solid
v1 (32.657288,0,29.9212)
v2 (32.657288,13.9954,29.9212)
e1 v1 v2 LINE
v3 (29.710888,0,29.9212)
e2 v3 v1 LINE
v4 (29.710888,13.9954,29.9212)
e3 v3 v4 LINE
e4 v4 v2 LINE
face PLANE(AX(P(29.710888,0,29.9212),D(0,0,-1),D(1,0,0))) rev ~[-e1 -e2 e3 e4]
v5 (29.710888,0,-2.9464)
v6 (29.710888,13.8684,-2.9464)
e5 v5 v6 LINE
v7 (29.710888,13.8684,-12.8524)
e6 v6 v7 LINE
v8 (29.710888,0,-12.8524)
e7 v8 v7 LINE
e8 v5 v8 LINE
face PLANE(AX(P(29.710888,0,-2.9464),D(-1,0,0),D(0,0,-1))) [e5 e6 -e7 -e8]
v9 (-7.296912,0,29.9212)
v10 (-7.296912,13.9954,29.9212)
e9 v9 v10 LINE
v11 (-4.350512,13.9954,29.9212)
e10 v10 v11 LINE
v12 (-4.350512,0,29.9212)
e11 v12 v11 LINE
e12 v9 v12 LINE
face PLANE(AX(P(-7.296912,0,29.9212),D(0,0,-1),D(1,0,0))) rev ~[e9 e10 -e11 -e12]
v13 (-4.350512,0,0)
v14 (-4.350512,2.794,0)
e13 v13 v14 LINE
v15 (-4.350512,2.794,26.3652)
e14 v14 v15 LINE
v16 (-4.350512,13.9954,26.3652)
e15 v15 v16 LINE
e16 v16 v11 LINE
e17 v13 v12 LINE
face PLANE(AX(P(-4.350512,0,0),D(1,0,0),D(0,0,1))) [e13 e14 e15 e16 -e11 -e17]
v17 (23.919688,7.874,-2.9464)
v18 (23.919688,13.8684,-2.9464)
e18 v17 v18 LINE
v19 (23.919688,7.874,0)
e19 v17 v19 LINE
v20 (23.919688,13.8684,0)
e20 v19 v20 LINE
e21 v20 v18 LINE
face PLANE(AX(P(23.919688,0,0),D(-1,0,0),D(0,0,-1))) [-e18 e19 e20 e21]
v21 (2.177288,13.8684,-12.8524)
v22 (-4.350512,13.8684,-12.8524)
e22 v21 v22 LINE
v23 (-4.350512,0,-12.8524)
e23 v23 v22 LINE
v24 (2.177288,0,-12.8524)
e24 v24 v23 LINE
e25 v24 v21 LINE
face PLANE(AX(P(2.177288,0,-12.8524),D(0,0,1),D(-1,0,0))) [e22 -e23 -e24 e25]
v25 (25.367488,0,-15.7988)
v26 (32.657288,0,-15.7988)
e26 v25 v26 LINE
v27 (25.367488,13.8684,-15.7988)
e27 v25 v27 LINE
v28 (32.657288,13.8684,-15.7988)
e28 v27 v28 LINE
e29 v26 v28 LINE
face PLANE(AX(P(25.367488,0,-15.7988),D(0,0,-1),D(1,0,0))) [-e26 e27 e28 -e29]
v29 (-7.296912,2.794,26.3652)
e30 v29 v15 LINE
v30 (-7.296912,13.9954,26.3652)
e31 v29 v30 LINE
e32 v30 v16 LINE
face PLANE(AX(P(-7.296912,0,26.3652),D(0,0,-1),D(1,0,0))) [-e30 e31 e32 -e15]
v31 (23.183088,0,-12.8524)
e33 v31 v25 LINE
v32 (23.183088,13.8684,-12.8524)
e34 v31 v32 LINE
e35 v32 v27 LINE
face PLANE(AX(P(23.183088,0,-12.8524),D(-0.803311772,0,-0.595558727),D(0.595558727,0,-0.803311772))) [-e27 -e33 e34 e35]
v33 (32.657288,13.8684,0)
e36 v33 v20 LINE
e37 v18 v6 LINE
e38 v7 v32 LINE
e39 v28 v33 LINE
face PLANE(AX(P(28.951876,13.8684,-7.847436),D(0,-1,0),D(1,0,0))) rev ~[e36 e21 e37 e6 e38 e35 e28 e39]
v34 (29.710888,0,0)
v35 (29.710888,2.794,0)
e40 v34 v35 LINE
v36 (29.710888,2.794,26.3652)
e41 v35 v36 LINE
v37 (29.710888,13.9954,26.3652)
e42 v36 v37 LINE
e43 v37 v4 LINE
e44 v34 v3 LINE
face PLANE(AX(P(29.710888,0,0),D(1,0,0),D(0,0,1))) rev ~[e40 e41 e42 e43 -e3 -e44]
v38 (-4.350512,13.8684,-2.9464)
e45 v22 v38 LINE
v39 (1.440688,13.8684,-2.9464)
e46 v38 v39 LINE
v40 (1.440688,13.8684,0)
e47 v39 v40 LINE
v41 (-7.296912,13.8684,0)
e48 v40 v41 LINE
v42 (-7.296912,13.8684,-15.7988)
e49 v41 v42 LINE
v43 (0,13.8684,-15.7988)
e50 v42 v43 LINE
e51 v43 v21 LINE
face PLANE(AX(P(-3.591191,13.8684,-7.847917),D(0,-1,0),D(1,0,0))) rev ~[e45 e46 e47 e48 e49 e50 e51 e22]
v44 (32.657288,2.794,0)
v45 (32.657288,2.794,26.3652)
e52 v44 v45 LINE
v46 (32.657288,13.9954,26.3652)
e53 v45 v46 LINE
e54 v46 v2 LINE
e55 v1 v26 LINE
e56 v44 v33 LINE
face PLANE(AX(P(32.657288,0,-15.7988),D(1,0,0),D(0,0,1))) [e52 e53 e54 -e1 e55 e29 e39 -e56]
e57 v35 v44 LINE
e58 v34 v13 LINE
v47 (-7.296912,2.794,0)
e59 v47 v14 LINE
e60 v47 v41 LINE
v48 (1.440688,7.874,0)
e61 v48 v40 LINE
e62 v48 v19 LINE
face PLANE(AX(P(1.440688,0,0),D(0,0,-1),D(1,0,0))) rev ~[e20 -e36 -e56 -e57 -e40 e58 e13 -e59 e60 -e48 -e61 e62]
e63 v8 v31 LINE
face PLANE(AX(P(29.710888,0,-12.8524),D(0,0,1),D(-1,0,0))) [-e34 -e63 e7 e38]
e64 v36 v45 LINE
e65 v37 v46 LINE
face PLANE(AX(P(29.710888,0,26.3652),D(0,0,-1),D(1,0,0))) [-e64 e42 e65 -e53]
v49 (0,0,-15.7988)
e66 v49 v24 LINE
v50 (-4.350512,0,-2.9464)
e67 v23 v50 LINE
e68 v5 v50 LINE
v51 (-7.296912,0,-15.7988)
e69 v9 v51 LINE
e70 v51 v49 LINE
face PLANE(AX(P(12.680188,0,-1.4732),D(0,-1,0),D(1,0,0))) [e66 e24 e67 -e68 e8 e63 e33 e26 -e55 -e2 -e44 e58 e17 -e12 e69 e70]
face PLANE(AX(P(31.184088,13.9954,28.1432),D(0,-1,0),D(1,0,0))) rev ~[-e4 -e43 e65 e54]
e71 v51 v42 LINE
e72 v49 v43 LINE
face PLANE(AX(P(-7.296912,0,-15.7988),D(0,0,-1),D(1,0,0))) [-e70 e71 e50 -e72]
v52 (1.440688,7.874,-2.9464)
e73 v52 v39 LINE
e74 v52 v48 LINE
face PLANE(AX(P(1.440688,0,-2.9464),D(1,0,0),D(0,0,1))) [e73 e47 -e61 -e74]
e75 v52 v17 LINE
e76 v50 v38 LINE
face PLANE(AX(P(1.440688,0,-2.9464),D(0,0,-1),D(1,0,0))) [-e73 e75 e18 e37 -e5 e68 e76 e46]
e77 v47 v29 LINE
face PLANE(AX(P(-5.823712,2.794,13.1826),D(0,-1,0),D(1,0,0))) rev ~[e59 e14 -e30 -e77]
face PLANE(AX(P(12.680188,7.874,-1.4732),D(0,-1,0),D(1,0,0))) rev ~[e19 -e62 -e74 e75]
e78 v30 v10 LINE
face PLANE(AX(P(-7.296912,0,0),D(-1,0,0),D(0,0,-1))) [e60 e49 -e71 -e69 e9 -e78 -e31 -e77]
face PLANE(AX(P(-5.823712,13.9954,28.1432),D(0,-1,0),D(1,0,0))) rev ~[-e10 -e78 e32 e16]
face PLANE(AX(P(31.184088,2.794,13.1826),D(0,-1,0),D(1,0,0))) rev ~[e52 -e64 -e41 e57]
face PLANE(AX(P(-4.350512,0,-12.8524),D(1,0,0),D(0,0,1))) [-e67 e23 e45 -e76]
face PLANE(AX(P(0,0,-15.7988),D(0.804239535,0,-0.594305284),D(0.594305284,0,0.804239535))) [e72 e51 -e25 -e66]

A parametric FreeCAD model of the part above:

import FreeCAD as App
import Part
import Sketcher
from FreeCAD import Vector
Q = App.Units.Quantity

doc = App.newDocument("Part")
params = doc.addObject("Spreadsheet::Sheet", "Params")
for row, (alias, value) in enumerate([
    ("sketch1_height", "0.14 in"),
    ("sketch1_width", "0.116 in"),
    ("pad1_length", "0.551 in"),
    ("sketch2_width", "0.116 in"),
    ("sketch2_height", "1.038 in"),
    ("pad2_length", "0.11 in"),
    ("sketch3_height", "0.39 in"),
    ("sketch3_width", "0.344 in"),
    ("sketch3_width2", "0.228 in"),
    ("sketch3_width3", "0.257 in"),
    ("sketch3_width4", "0.287 in"),
    ("pad3_length", "0.546 in"),
    ("sketch4_width", "0.885 in"),
    ("sketch4_height", "0.116 in"),
    ("pad4_length", "0.31 in"),
], start=1):
    params.set(f"A{row}", alias)
    params.set(f"B{row}", "=" + value)
    params.setAlias(f"B{row}", alias)

body = doc.addObject("PartDesign::Body", "Body")
body.AllowCompound = True

# Sketch on XZ plane
sketch1 = body.newObject("Sketcher::SketchObject", "Sketch")
sketch1.AttachmentSupport = (doc.getObject("XZ_Plane"), [""])
sketch1.MapMode = "FlatFace"
sketch1.addGeometry([
    Part.LineSegment(Vector(-7.3, 29.9, 0), Vector(-7.3, 26.4, 0)),  # 0
    Part.LineSegment(Vector(-7.3, 26.4, 0), Vector(-4.4, 26.4, 0)),  # 1
    Part.LineSegment(Vector(-4.4, 26.4, 0), Vector(-4.4, 29.9, 0)),  # 2
    Part.LineSegment(Vector(-4.4, 29.9, 0), Vector(-7.3, 29.9, 0)),  # 3
    Part.LineSegment(Vector(29.7, 29.9, 0), Vector(29.7, 26.4, 0)),  # 4
    Part.LineSegment(Vector(29.7, 26.4, 0), Vector(32.7, 26.4, 0)),  # 5
    Part.LineSegment(Vector(32.7, 26.4, 0), Vector(32.7, 29.9, 0)),  # 6
    Part.LineSegment(Vector(32.7, 29.9, 0), Vector(29.7, 29.9, 0)),  # 7
], False)
sketch1.addConstraint([
    Sketcher.Constraint("Coincident", 0, 2, 1, 1),
    Sketcher.Constraint("Coincident", 1, 2, 2, 1),
    Sketcher.Constraint("Coincident", 2, 2, 3, 1),
    Sketcher.Constraint("Coincident", 3, 2, 0, 1),
    Sketcher.Constraint("Coincident", 4, 2, 5, 1),
    Sketcher.Constraint("Coincident", 5, 2, 6, 1),
    Sketcher.Constraint("Coincident", 6, 2, 7, 1),
    Sketcher.Constraint("Coincident", 7, 2, 4, 1),
    Sketcher.Constraint("Vertical", 0),
    Sketcher.Constraint("Horizontal", 1),
    Sketcher.Constraint("Vertical", 2),
    Sketcher.Constraint("Horizontal", 3),
    Sketcher.Constraint("Vertical", 4),
    Sketcher.Constraint("Horizontal", 5),
    Sketcher.Constraint("Vertical", 6),
    Sketcher.Constraint("Horizontal", 7),
    Sketcher.Constraint("Horizontal", 1, 2, 4, 2),
    Sketcher.Constraint("Horizontal", 3, 2, 6, 2),
    Sketcher.Constraint("Equal", 3, 5),
    Sketcher.Constraint("DistanceY", 0, 2, 0, 1, Q("0.14 in")),
    Sketcher.Constraint("DistanceX", 1, 1, 1, 2, Q("0.116 in")),
    Sketcher.Constraint("DistanceY", -1, 1, 0, 2, Q("1.038 in")),
    Sketcher.Constraint("DistanceX", 1, 2, 4, 2, Q("1.341 in")),
    Sketcher.Constraint("DistanceX", -1, 1, 4, 2, 29.710888),
])
sketch1.setExpression("Constraints[19]", "Params.sketch1_height")
sketch1.setExpression("Constraints[20]", "Params.sketch1_width")
pad1 = body.newObject("PartDesign::Pad", "Pad")
pad1.Profile = sketch1
pad1.setExpression("Length", "Params.pad1_length")
pad1.Reversed = True

# Sketch on XZ plane
sketch2 = body.newObject("Sketcher::SketchObject", "Sketch001")
sketch2.AttachmentSupport = (doc.getObject("XZ_Plane"), [""])
sketch2.MapMode = "FlatFace"
sketch2.addGeometry([
    Part.LineSegment(Vector(-7.3, 26.4, 0), Vector(-7.3, 0, 0)),  # 0
    Part.LineSegment(Vector(-7.3, 0, 0), Vector(-4.4, 0, 0)),  # 1
    Part.LineSegment(Vector(-4.4, 0, 0), Vector(-4.4, 26.4, 0)),  # 2
    Part.LineSegment(Vector(-4.4, 26.4, 0), Vector(-7.3, 26.4, 0)),  # 3
    Part.LineSegment(Vector(29.7, 26.4, 0), Vector(29.7, 0, 0)),  # 4
    Part.LineSegment(Vector(29.7, 0, 0), Vector(32.7, 0, 0)),  # 5
    Part.LineSegment(Vector(32.7, 0, 0), Vector(32.7, 26.4, 0)),  # 6
    Part.LineSegment(Vector(32.7, 26.4, 0), Vector(29.7, 26.4, 0)),  # 7
], False)
sketch2.addConstraint([
    Sketcher.Constraint("Coincident", 0, 2, 1, 1),
    Sketcher.Constraint("Coincident", 1, 2, 2, 1),
    Sketcher.Constraint("Coincident", 2, 2, 3, 1),
    Sketcher.Constraint("Coincident", 3, 2, 0, 1),
    Sketcher.Constraint("Coincident", 4, 2, 5, 1),
    Sketcher.Constraint("Coincident", 5, 2, 6, 1),
    Sketcher.Constraint("Coincident", 6, 2, 7, 1),
    Sketcher.Constraint("Coincident", 7, 2, 4, 1),
    Sketcher.Constraint("Vertical", 0),
    Sketcher.Constraint("Horizontal", 1),
    Sketcher.Constraint("Vertical", 2),
    Sketcher.Constraint("Horizontal", 3),
    Sketcher.Constraint("Vertical", 4),
    Sketcher.Constraint("Horizontal", 5),
    Sketcher.Constraint("Vertical", 6),
    Sketcher.Constraint("Horizontal", 7),
    Sketcher.Constraint("PointOnObject", 0, 2, -1),
    Sketcher.Constraint("PointOnObject", 4, 2, -1),
    Sketcher.Constraint("Horizontal", 3, 2, 6, 2),
    Sketcher.Constraint("Equal", 3, 5),
    Sketcher.Constraint("DistanceX", 1, 1, 1, 2, Q("0.116 in")),
    Sketcher.Constraint("DistanceY", 0, 2, 0, 1, Q("1.038 in")),
    Sketcher.Constraint("DistanceX", 1, 2, 4, 2, Q("1.341 in")),
    Sketcher.Constraint("DistanceX", -1, 1, 4, 2, 29.710888),
])
sketch2.setExpression("Constraints[20]", "Params.sketch2_width")
sketch2.setExpression("Constraints[21]", "Params.sketch2_height")
pad2 = body.newObject("PartDesign::Pad", "Pad001")
pad2.Profile = sketch2
pad2.setExpression("Length", "Params.pad2_length")
pad2.Reversed = True

# Sketch on XZ plane
sketch3 = body.newObject("Sketcher::SketchObject", "Sketch002")
sketch3.AttachmentSupport = (doc.getObject("XZ_Plane"), [""])
sketch3.MapMode = "FlatFace"
sketch3.addGeometry([
    Part.LineSegment(Vector(32.7, -15.8, 0), Vector(32.7, 0, 0)),  # 0
    Part.LineSegment(Vector(32.7, 0, 0), Vector(23.9, 0, 0)),  # 1
    Part.LineSegment(Vector(23.9, 0, 0), Vector(23.9, -2.9, 0)),  # 2
    Part.LineSegment(Vector(23.9, -2.9, 0), Vector(29.7, -2.9, 0)),  # 3
    Part.LineSegment(Vector(29.7, -2.9, 0), Vector(29.7, -12.9, 0)),  # 4
    Part.LineSegment(Vector(29.7, -12.9, 0), Vector(23.2, -12.9, 0)),  # 5
    Part.LineSegment(Vector(23.2, -12.9, 0), Vector(25.4, -15.8, 0)),  # 6
    Part.LineSegment(Vector(25.4, -15.8, 0), Vector(32.7, -15.8, 0)),  # 7
    Part.LineSegment(Vector(1.4, -2.9, 0), Vector(1.4, 0, 0)),  # 8
    Part.LineSegment(Vector(1.4, 0, 0), Vector(-7.3, 0, 0)),  # 9
    Part.LineSegment(Vector(-7.3, 0, 0), Vector(-7.3, -15.8, 0)),  # 10
    Part.LineSegment(Vector(-7.3, -15.8, 0), Vector(0, -15.8, 0)),  # 11
    Part.LineSegment(Vector(0, -15.8, 0), Vector(2.2, -12.9, 0)),  # 12
    Part.LineSegment(Vector(2.2, -12.9, 0), Vector(-4.4, -12.9, 0)),  # 13
    Part.LineSegment(Vector(-4.4, -12.9, 0), Vector(-4.4, -2.9, 0)),  # 14
    Part.LineSegment(Vector(-4.4, -2.9, 0), Vector(1.4, -2.9, 0)),  # 15
], False)
sketch3.addConstraint([
    Sketcher.Constraint("Coincident", 0, 2, 1, 1),
    Sketcher.Constraint("Coincident", 1, 2, 2, 1),
    Sketcher.Constraint("Coincident", 2, 2, 3, 1),
    Sketcher.Constraint("Coincident", 3, 2, 4, 1),
    Sketcher.Constraint("Coincident", 4, 2, 5, 1),
    Sketcher.Constraint("Coincident", 5, 2, 6, 1),
    Sketcher.Constraint("Coincident", 6, 2, 7, 1),
    Sketcher.Constraint("Coincident", 7, 2, 0, 1),
    Sketcher.Constraint("Coincident", 8, 2, 9, 1),
    Sketcher.Constraint("Coincident", 9, 2, 10, 1),
    Sketcher.Constraint("Coincident", 10, 2, 11, 1),
    Sketcher.Constraint("Coincident", 11, 2, 12, 1),
    Sketcher.Constraint("Coincident", 12, 2, 13, 1),
    Sketcher.Constraint("Coincident", 13, 2, 14, 1),
    Sketcher.Constraint("Coincident", 14, 2, 15, 1),
    Sketcher.Constraint("Coincident", 15, 2, 8, 1),
    Sketcher.Constraint("Vertical", 0),
    Sketcher.Constraint("Horizontal", 1),
    Sketcher.Constraint("Vertical", 2),
    Sketcher.Constraint("Horizontal", 3),
    Sketcher.Constraint("Vertical", 4),
    Sketcher.Constraint("Horizontal", 5),
    Sketcher.Constraint("Horizontal", 7),
    Sketcher.Constraint("Vertical", 8),
    Sketcher.Constraint("Horizontal", 9),
    Sketcher.Constraint("Vertical", 10),
    Sketcher.Constraint("Horizontal", 11),
    Sketcher.Constraint("Horizontal", 13),
    Sketcher.Constraint("Vertical", 14),
    Sketcher.Constraint("Horizontal", 15),
    Sketcher.Constraint("PointOnObject", 0, 2, -1),
    Sketcher.Constraint("PointOnObject", 8, 2, -1),
    Sketcher.Constraint("PointOnObject", 11, 2, -2),
    Sketcher.Constraint("Horizontal", 7, 2, 10, 2),
    Sketcher.Constraint("Horizontal", 5, 2, 12, 2),
    Sketcher.Constraint("Horizontal", 3, 2, 14, 2),
    Sketcher.Constraint("Equal", 1, 9),
    Sketcher.Constraint("Equal", 5, 13),
    Sketcher.Constraint("Equal", 3, 15),
    Sketcher.Constraint("DistanceY", 4, 2, 4, 1, Q("0.39 in")),
    Sketcher.Constraint("DistanceX", 9, 2, 5, 2, Q("1.2 in")),
    Sketcher.Constraint("DistanceX", 1, 2, 1, 1, Q("0.344 in")),
    Sketcher.Constraint("DistanceX", 3, 1, 3, 2, Q("0.228 in")),
    Sketcher.Constraint("DistanceX", 5, 2, 5, 1, Q("0.257 in")),
    Sketcher.Constraint("DistanceX", 7, 1, 7, 2, Q("0.287 in")),
    Sketcher.Constraint("DistanceY", 0, 1, 0, 2, Q("0.622 in")),
    Sketcher.Constraint("DistanceY", 2, 2, 2, 1, Q("0.116 in")),
    Sketcher.Constraint("DistanceX", 11, 1, 11, 2, 7.296912),
])
sketch3.setExpression("Constraints[39]", "Params.sketch3_height")
sketch3.setExpression("Constraints[41]", "Params.sketch3_width")
sketch3.setExpression("Constraints[42]", "Params.sketch3_width2")
sketch3.setExpression("Constraints[43]", "Params.sketch3_width3")
sketch3.setExpression("Constraints[44]", "Params.sketch3_width4")
pad3 = body.newObject("PartDesign::Pad", "Pad002")
pad3.Profile = sketch3
pad3.setExpression("Length", "Params.pad3_length")
pad3.Reversed = True

# Sketch on XZ plane
sketch4 = body.newObject("Sketcher::SketchObject", "Sketch003")
sketch4.AttachmentSupport = (doc.getObject("XZ_Plane"), [""])
sketch4.MapMode = "FlatFace"
sketch4.addGeometry([
    Part.LineSegment(Vector(1.4, 0, 0), Vector(1.4, -2.9, 0)),
    Part.LineSegment(Vector(1.4, -2.9, 0), Vector(23.9, -2.9, 0)),
    Part.LineSegment(Vector(23.9, -2.9, 0), Vector(23.9, 0, 0)),
    Part.LineSegment(Vector(23.9, 0, 0), Vector(1.4, 0, 0)),
], False)
sketch4.addConstraint([
    Sketcher.Constraint("Coincident", 0, 2, 1, 1),
    Sketcher.Constraint("Coincident", 1, 2, 2, 1),
    Sketcher.Constraint("Coincident", 2, 2, 3, 1),
    Sketcher.Constraint("Coincident", 3, 2, 0, 1),
    Sketcher.Constraint("Vertical", 0),
    Sketcher.Constraint("Horizontal", 1),
    Sketcher.Constraint("Vertical", 2),
    Sketcher.Constraint("Horizontal", 3),
    Sketcher.Constraint("PointOnObject", 2, 2, -1),
    Sketcher.Constraint("DistanceX", 1, 1, 1, 2, Q("0.885 in")),
    Sketcher.Constraint("DistanceY", 0, 2, 0, 1, Q("0.116 in")),
    Sketcher.Constraint("DistanceX", -1, 1, 1, 2, 23.919688),
])
sketch4.setExpression("Constraints[9]", "Params.sketch4_width")
sketch4.setExpression("Constraints[10]", "Params.sketch4_height")
pad4 = body.newObject("PartDesign::Pad", "Pad003")
pad4.Profile = sketch4
pad4.setExpression("Length", "Params.pad4_length")
pad4.Reversed = True

doc.recompute()
